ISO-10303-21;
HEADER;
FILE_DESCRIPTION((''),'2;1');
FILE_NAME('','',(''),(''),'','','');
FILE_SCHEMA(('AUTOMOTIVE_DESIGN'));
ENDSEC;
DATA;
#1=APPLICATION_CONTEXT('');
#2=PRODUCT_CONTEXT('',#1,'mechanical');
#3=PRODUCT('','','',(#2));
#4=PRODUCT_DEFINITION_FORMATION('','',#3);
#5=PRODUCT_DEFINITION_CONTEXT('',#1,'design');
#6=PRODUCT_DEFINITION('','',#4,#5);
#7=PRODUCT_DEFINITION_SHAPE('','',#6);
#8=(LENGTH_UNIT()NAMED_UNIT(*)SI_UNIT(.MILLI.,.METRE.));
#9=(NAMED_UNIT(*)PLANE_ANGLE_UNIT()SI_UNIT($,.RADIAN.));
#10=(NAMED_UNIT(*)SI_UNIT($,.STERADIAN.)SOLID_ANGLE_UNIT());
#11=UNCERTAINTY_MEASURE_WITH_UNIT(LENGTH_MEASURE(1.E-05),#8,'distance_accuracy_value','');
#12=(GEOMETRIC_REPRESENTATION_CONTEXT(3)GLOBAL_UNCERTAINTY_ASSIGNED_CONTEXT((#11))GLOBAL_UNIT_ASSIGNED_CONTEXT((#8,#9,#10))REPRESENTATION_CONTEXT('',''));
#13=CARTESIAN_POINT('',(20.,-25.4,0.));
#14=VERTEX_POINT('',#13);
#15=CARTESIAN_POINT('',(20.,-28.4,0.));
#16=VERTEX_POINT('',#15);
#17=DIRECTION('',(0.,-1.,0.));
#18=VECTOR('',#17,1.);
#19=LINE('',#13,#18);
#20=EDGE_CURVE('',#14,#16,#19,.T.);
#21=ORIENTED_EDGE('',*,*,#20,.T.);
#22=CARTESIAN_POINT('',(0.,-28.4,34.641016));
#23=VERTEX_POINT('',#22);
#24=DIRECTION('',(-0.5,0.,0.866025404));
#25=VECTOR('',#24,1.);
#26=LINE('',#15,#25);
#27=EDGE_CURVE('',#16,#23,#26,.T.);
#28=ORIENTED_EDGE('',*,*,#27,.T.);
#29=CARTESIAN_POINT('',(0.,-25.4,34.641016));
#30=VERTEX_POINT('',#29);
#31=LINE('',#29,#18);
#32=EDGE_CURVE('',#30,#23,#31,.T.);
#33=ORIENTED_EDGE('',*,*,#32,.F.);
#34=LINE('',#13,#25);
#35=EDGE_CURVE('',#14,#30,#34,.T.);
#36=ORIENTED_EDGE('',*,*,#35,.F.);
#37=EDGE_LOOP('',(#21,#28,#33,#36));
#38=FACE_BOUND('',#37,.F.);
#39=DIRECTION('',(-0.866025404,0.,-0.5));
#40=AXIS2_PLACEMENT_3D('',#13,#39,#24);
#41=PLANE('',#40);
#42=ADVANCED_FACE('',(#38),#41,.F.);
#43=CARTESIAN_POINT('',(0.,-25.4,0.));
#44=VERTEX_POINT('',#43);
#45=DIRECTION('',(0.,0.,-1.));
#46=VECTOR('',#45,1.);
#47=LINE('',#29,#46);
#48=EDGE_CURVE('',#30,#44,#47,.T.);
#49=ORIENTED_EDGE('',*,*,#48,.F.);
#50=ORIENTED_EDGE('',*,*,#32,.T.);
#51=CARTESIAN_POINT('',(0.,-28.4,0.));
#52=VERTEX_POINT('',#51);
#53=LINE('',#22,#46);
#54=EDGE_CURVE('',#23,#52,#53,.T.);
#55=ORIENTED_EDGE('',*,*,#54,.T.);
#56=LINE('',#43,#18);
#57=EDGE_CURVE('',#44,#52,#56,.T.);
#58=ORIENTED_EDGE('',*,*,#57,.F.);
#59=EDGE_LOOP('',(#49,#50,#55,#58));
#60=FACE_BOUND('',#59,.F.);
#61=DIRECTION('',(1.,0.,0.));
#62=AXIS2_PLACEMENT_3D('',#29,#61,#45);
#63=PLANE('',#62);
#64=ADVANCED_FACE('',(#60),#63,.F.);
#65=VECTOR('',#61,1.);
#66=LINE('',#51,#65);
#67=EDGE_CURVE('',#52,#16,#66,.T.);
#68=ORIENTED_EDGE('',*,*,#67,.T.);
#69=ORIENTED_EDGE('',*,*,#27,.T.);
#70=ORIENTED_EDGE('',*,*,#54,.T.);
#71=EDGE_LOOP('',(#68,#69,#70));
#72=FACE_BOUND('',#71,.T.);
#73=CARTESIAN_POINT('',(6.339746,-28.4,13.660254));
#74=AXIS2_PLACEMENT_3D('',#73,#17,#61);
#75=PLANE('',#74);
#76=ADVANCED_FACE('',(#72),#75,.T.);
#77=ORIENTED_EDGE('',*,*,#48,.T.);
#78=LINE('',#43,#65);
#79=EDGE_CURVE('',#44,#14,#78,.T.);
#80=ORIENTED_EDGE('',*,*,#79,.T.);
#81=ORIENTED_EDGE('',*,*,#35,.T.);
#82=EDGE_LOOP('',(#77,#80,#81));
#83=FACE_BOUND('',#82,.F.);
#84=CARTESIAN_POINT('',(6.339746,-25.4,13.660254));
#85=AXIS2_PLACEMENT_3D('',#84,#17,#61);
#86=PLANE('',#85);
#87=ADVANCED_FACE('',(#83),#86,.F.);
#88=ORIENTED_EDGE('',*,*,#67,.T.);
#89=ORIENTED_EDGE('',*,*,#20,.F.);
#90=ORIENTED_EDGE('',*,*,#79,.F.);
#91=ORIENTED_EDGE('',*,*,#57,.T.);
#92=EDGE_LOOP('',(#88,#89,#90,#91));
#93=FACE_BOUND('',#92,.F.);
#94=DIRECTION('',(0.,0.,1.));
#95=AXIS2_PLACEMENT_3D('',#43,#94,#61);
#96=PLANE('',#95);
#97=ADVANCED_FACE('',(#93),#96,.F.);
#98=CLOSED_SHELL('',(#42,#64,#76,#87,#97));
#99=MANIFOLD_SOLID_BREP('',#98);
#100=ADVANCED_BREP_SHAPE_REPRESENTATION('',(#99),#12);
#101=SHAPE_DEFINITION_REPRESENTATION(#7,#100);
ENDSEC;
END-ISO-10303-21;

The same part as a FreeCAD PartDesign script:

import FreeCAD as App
import Part
import Sketcher
Q = App.Units.Quantity


def add_polygon(sketch, points):
    """Adds a closed chain of lines whose ends are joined by coincident constraints."""
    first, n = sketch.GeometryCount, len(points)
    for a, b in zip(points, points[1:] + points[:1]):
        sketch.addGeometry(Part.LineSegment(App.Vector(*a, 0), App.Vector(*b, 0)), False)
    for i in range(n):
        sketch.addConstraint(Sketcher.Constraint("Coincident", first + i, 2, first + (i + 1) % n, 1))

doc = App.newDocument("Part")
body = doc.addObject("PartDesign::Body", "Body")

# Sketch on XZ plane
sketch1 = body.newObject("Sketcher::SketchObject", "Sketch")
sketch1.AttachmentSupport = (doc.getObject("XZ_Plane"), [""])
sketch1.MapMode = "FlatFace"
add_polygon(sketch1, [(0, 34.641016), (0, 0), (20, 0)])  # lines 0-2
sketch1.addConstraint(Sketcher.Constraint("Vertical", 0))
sketch1.addConstraint(Sketcher.Constraint("Horizontal", 1))
sketch1.addConstraint(Sketcher.Constraint("Coincident", 0, 2, -1, 1))
sketch1.addConstraint(Sketcher.Constraint("DistanceX", 1, 1, 1, 2, 20.0))
sketch1.addConstraint(Sketcher.Constraint("Angle", 2, Q("120 deg")))
pad1 = body.newObject("PartDesign::Pad", "Pad")
pad1.Profile = sketch1
pad1.Length = 3
body2 = doc.addObject("PartDesign::Body", "Body001")
doc.recompute()

body.Placement = App.Placement(App.Vector(0, -25.4, 0), App.Rotation(App.Vector(0, 0, 1), 0))
boolean = body2.newObject("PartDesign::Boolean", "Boolean")
boolean.Type = "Fuse"
boolean.addObjects([body])

doc.recompute()
